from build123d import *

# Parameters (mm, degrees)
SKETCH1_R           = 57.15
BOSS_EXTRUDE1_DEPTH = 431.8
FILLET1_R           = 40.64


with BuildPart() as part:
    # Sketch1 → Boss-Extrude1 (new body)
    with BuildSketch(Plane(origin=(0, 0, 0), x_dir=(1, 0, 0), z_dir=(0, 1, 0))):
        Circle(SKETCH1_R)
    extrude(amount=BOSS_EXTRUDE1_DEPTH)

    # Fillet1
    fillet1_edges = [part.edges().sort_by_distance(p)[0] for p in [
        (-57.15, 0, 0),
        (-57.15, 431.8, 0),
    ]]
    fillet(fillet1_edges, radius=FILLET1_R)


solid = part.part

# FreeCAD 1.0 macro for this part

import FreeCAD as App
import Part
import Sketcher

V = App.Vector
Q = App.Units.Quantity


def edges_at(feature, points):
    """Names of the edges that pass closest to the given points."""
    edges = feature.Shape.Edges
    near = lambda p: min(range(len(edges)), key=lambda i: edges[i].distToShape(Part.Vertex(*p))[0])
    return sorted({f"Edge{near(p) + 1}" for p in points})

doc = App.newDocument("Part")
body = doc.addObject("PartDesign::Body", "Body")

sketch1 = doc.addObject("Sketcher::SketchObject", "Sketch")
body.addObject(sketch1)
sketch1.AttachmentSupport = (doc.XZ_Plane, [""])
sketch1.MapMode = "FlatFace"
sketch1.addGeometry(Part.Circle(V(0, 0, 0), V(0, 0, 1), 57.15), False)
sketch1.addConstraint([
    Sketcher.Constraint("Coincident", 0, 3, -1, 1),
    Sketcher.Constraint("Diameter", 0, Q("4.5 in")),
])
pad1 = doc.addObject("PartDesign::Pad", "Pad")
body.addObject(pad1)
pad1.Profile = sketch1
pad1.Length = Q("17 in")
pad1.Reversed = True
doc.recompute()

fillet = doc.addObject("PartDesign::Fillet", "Fillet")
body.addObject(fillet)
fillet.Base = (pad1, edges_at(pad1, [(-57.15, 0, 0), (-57.15, 431.8, 0)]))
fillet.Radius = Q("1.6 in")

doc.recompute()
